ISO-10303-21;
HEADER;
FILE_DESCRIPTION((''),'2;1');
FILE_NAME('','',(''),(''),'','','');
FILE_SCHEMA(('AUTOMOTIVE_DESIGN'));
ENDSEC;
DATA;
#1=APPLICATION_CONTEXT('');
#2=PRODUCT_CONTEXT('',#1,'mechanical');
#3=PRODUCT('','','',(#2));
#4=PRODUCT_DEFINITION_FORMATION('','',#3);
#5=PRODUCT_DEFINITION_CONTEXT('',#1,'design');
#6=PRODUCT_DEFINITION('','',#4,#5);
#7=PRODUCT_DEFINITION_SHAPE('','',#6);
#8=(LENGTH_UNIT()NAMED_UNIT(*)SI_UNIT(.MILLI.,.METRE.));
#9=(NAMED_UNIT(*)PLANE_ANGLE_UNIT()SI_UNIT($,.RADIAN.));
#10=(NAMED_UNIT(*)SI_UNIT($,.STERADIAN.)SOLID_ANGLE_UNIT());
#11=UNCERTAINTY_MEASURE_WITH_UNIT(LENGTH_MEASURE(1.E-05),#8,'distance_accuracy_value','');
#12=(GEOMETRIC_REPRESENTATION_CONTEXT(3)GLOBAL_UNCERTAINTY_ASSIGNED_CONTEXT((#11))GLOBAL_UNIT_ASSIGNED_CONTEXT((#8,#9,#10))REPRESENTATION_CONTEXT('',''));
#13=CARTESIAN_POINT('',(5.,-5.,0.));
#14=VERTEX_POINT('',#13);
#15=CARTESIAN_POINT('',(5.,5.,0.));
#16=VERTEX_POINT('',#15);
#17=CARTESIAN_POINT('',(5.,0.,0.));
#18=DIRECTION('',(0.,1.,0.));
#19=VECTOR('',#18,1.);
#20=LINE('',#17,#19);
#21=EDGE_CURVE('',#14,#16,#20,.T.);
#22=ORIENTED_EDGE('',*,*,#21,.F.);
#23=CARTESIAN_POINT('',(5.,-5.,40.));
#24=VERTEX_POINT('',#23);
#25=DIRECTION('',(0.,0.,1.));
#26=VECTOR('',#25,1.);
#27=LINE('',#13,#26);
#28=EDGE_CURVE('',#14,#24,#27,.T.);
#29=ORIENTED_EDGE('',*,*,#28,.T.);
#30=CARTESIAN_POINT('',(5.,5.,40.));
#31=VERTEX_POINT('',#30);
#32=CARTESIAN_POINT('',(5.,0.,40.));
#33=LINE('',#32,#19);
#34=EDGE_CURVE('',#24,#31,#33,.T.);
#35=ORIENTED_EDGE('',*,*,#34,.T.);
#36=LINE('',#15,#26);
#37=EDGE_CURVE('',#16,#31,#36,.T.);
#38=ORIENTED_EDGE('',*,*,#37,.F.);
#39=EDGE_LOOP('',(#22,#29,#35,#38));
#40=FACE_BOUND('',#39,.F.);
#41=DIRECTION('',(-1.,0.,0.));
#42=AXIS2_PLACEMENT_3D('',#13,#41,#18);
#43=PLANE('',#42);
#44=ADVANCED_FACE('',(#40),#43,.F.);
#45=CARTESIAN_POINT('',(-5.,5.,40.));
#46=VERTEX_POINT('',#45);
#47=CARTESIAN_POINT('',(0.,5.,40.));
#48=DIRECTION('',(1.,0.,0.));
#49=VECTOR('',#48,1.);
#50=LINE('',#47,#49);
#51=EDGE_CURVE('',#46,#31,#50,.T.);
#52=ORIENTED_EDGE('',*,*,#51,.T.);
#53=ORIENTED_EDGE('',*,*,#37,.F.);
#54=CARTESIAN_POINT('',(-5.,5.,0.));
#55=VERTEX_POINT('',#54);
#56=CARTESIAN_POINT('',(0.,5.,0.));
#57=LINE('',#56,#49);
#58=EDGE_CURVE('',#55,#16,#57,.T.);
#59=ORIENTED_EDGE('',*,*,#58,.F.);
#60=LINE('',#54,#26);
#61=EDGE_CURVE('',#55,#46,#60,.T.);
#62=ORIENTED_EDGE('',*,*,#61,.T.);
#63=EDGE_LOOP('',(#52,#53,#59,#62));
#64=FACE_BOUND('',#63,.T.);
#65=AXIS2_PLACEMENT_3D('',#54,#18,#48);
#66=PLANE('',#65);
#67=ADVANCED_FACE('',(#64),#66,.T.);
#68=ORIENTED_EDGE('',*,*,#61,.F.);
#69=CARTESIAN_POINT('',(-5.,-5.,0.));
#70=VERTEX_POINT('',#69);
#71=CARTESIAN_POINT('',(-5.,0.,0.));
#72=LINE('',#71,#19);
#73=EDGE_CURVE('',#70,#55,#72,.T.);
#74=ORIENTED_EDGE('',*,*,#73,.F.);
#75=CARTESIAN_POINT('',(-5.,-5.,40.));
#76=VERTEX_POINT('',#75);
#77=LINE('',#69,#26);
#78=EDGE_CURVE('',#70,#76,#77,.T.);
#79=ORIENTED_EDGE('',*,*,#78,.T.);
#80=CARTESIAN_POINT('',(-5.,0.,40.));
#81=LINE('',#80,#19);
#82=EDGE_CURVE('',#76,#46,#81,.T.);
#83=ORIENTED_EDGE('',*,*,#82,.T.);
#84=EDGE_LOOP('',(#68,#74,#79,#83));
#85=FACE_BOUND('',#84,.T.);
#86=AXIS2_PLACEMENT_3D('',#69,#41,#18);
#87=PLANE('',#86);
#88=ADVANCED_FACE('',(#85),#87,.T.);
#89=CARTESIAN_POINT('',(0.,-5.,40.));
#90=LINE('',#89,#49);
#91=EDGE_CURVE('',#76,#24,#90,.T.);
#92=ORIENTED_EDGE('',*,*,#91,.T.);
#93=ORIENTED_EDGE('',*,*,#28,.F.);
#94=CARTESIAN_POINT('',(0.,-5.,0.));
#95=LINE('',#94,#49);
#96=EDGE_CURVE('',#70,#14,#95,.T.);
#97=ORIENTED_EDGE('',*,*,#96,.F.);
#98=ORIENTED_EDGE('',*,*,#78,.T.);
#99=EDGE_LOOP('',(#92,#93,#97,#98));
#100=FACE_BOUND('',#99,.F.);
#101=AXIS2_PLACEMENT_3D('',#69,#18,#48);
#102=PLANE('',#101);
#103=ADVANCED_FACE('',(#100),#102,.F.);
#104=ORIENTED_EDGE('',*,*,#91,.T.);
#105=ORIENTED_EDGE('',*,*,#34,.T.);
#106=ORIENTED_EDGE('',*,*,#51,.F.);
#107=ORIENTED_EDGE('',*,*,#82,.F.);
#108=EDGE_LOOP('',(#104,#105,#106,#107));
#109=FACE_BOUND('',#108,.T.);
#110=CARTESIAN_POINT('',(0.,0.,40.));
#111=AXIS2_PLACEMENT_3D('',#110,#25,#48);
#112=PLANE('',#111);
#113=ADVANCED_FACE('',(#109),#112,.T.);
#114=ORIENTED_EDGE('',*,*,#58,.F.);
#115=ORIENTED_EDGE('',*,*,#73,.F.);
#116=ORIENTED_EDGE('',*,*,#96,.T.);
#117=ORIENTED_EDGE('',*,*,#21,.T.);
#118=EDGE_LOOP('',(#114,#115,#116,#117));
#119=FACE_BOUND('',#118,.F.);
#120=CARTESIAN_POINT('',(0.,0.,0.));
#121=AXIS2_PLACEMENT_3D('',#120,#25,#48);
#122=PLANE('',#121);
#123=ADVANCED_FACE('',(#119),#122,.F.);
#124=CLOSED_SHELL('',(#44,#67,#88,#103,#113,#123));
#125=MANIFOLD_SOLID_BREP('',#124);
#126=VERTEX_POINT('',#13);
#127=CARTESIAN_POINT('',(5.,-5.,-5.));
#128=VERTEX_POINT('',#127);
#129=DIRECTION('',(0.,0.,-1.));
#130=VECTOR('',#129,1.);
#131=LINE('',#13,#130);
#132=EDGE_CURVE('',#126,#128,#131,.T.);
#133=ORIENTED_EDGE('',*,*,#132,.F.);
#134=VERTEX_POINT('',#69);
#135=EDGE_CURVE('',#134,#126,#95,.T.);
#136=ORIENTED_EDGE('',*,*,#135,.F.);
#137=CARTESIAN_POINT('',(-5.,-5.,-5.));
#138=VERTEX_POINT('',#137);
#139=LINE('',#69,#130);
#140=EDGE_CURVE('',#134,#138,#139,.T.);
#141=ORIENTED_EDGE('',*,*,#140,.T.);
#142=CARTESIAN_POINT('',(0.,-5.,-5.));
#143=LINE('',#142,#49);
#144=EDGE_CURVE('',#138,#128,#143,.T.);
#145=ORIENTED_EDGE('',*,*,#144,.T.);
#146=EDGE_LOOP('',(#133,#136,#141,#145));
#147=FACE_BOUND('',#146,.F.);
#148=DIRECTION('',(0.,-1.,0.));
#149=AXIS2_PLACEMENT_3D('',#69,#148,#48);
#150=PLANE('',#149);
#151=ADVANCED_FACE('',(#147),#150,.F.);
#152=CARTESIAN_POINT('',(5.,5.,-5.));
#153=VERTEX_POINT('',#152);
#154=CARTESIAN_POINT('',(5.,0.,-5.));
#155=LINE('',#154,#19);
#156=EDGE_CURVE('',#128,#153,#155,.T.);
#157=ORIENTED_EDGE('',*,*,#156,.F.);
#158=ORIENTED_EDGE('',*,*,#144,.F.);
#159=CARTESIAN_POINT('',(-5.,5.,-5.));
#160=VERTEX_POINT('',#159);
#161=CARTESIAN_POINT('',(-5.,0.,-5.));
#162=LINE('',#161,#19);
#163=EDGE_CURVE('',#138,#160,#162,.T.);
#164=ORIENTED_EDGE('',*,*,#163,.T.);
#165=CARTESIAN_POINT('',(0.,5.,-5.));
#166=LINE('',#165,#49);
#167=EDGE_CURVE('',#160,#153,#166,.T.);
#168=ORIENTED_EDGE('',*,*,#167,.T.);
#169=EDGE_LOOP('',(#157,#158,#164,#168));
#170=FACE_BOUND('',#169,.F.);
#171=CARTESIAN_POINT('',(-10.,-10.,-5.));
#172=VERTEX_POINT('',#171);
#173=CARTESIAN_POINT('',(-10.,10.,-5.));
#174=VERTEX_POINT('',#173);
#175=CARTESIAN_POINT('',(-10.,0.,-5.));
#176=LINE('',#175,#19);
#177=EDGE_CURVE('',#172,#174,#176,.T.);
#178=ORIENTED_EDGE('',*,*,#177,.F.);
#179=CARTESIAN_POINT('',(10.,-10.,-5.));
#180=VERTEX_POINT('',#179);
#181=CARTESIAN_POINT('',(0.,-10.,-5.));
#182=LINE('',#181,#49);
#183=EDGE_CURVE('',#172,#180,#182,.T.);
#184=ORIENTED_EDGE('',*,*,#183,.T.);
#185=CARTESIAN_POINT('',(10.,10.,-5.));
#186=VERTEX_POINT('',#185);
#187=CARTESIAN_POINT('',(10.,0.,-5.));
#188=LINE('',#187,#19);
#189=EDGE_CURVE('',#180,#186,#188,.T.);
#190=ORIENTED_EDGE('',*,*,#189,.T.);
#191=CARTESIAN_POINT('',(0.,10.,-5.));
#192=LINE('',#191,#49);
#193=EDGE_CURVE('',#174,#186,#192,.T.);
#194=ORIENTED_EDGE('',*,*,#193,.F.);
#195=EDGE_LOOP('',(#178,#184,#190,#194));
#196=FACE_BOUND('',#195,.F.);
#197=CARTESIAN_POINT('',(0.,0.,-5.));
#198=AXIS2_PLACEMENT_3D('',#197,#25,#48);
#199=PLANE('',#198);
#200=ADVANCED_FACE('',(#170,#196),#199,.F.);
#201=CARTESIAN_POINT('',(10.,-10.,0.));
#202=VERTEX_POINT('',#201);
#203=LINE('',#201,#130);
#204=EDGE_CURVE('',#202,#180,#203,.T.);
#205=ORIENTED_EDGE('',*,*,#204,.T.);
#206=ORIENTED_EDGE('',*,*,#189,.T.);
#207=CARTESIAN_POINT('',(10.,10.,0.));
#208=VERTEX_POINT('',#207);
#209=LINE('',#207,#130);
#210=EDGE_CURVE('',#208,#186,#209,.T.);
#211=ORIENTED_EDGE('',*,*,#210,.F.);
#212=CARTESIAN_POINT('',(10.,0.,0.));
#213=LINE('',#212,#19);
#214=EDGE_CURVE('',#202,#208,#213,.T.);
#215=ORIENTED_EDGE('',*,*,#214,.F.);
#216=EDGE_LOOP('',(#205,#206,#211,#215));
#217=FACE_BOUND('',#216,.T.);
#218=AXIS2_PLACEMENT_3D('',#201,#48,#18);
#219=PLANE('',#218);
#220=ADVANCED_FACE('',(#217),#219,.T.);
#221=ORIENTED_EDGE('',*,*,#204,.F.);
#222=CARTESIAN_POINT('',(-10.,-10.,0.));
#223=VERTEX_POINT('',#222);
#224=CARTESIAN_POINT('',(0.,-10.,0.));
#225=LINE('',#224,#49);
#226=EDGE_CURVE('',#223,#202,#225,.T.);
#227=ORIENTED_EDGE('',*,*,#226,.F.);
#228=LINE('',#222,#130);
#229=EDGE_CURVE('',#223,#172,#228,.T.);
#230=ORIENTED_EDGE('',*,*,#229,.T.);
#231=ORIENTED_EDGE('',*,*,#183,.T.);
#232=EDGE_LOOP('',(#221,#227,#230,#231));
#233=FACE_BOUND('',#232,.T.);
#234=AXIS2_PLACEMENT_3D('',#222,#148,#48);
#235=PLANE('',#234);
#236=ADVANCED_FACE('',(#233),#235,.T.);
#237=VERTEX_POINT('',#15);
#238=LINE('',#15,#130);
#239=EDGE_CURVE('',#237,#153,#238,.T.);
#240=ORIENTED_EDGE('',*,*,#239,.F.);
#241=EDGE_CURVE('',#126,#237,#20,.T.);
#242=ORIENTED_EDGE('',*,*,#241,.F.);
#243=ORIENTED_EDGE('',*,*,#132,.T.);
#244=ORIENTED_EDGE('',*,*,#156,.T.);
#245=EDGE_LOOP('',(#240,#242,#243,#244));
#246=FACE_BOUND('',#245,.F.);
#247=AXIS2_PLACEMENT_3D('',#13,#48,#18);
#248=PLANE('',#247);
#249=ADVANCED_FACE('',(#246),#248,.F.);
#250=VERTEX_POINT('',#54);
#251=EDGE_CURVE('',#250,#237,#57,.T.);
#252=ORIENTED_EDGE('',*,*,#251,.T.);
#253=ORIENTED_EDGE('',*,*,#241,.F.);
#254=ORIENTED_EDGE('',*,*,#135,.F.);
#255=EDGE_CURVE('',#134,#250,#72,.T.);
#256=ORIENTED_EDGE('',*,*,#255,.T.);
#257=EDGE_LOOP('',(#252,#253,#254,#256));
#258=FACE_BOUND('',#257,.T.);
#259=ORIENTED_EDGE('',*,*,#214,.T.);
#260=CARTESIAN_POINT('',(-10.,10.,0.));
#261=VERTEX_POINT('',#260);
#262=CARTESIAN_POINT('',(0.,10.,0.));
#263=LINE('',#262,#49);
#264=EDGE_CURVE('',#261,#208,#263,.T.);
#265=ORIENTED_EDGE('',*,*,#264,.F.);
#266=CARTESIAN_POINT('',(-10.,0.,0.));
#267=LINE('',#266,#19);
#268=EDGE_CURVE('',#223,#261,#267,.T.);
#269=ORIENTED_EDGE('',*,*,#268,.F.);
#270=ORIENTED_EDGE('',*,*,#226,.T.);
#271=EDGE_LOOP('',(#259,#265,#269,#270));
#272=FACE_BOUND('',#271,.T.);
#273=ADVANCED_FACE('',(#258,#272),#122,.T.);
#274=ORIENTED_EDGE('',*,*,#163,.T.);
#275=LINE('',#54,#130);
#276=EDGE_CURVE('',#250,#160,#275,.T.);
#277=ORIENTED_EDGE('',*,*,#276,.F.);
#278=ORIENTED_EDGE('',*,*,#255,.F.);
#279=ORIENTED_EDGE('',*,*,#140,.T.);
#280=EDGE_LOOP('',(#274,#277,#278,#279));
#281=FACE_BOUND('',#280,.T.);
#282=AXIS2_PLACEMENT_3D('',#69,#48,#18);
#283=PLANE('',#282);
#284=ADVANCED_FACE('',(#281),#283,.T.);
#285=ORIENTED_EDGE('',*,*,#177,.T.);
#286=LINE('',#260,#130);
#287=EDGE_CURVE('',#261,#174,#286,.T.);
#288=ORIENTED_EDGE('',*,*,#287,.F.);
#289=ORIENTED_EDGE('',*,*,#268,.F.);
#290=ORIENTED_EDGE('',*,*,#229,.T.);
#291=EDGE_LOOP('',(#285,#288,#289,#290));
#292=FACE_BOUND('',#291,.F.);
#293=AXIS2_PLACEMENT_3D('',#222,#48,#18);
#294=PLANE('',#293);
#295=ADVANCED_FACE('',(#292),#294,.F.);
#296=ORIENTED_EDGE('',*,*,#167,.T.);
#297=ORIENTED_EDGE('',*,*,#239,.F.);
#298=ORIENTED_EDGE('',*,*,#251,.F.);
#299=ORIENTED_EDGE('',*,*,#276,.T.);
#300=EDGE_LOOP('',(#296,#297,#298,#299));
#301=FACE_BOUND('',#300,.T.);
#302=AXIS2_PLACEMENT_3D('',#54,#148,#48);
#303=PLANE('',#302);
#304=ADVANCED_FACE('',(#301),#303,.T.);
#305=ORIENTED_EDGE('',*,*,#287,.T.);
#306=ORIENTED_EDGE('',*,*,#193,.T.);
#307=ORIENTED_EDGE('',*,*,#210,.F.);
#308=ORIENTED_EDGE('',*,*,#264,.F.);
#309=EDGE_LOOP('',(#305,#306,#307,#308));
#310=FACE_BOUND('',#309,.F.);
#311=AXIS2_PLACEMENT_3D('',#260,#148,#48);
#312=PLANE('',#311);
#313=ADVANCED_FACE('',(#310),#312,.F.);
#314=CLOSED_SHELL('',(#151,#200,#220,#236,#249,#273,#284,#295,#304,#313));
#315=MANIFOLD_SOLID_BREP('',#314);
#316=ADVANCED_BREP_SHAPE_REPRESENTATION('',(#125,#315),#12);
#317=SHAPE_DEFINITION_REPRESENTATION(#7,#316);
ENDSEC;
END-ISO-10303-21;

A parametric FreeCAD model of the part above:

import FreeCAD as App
import Part
import Sketcher
Q = App.Units.Quantity

doc = App.newDocument("Part")
body = doc.addObject("PartDesign::Body", "Body")

# Sketch on XY plane
sketch1 = body.newObject("Sketcher::SketchObject", "Sketch")
sketch1.AttachmentSupport = (doc.getObject("XY_Plane"), [""])
sketch1.MapMode = "FlatFace"
sketch1.addGeometry([
    Part.LineSegment(App.Vector(-5, 5, 0), App.Vector(-5, -5, 0)),
    Part.LineSegment(App.Vector(-5, -5, 0), App.Vector(5, -5, 0)),
    Part.LineSegment(App.Vector(5, -5, 0), App.Vector(5, 5, 0)),
    Part.LineSegment(App.Vector(5, 5, 0), App.Vector(-5, 5, 0)),
], False)
sketch1.addConstraint([
    Sketcher.Constraint("Coincident", 0, 2, 1, 1),
    Sketcher.Constraint("Coincident", 1, 2, 2, 1),
    Sketcher.Constraint("Coincident", 2, 2, 3, 1),
    Sketcher.Constraint("Coincident", 3, 2, 0, 1),
    Sketcher.Constraint("Vertical", 0),
    Sketcher.Constraint("Horizontal", 1),
    Sketcher.Constraint("Vertical", 2),
    Sketcher.Constraint("Horizontal", 3),
    Sketcher.Constraint("Symmetric", 0, 2, 2, 2, -1, 1),
    Sketcher.Constraint("Equal", 3, 0),
    Sketcher.Constraint("DistanceX", 1, 1, 1, 2, Q("10 mm")),
])
pad1 = body.newObject("PartDesign::Pad", "Pad")
pad1.Profile = sketch1
pad1.Length = 40
body2 = doc.addObject("PartDesign::Body", "Body001")

# Sketch on XY plane
sketch2 = body2.newObject("Sketcher::SketchObject", "Sketch001")
sketch2.AttachmentSupport = (doc.getObject("XY_Plane001"), [""])
sketch2.MapMode = "FlatFace"
sketch2.addGeometry([
    Part.LineSegment(App.Vector(-10, 10, 0), App.Vector(-10, -10, 0)),  # 0
    Part.LineSegment(App.Vector(-10, -10, 0), App.Vector(10, -10, 0)),  # 1
    Part.LineSegment(App.Vector(10, -10, 0), App.Vector(10, 10, 0)),  # 2
    Part.LineSegment(App.Vector(10, 10, 0), App.Vector(-10, 10, 0)),  # 3
    Part.LineSegment(App.Vector(5, -5, 0), App.Vector(-5, -5, 0)),  # 4
    Part.LineSegment(App.Vector(-5, -5, 0), App.Vector(-5, 5, 0)),  # 5
    Part.LineSegment(App.Vector(-5, 5, 0), App.Vector(5, 5, 0)),  # 6
    Part.LineSegment(App.Vector(5, 5, 0), App.Vector(5, -5, 0)),  # 7
], False)
sketch2.addConstraint([
    Sketcher.Constraint("Coincident", 0, 2, 1, 1),
    Sketcher.Constraint("Coincident", 1, 2, 2, 1),
    Sketcher.Constraint("Coincident", 2, 2, 3, 1),
    Sketcher.Constraint("Coincident", 3, 2, 0, 1),
    Sketcher.Constraint("Coincident", 4, 2, 5, 1),
    Sketcher.Constraint("Coincident", 5, 2, 6, 1),
    Sketcher.Constraint("Coincident", 6, 2, 7, 1),
    Sketcher.Constraint("Coincident", 7, 2, 4, 1),
    Sketcher.Constraint("Vertical", 0),
    Sketcher.Constraint("Horizontal", 1),
    Sketcher.Constraint("Vertical", 2),
    Sketcher.Constraint("Horizontal", 3),
    Sketcher.Constraint("Horizontal", 4),
    Sketcher.Constraint("Vertical", 5),
    Sketcher.Constraint("Horizontal", 6),
    Sketcher.Constraint("Vertical", 7),
    Sketcher.Constraint("Symmetric", 0, 2, 2, 2, -1, 1),
    Sketcher.Constraint("Symmetric", 4, 2, 6, 2, -1, 1),
    Sketcher.Constraint("Equal", 3, 0),
    Sketcher.Constraint("Equal", 6, 5),
    Sketcher.Constraint("DistanceX", 1, 1, 1, 2, Q("20 mm")),
    Sketcher.Constraint("DistanceX", 4, 2, 4, 1, Q("10 mm")),
])
pad2 = body2.newObject("PartDesign::Pad", "Pad001")
pad2.Profile = sketch2
pad2.Length = 5
pad2.Reversed = True

doc.recompute()
